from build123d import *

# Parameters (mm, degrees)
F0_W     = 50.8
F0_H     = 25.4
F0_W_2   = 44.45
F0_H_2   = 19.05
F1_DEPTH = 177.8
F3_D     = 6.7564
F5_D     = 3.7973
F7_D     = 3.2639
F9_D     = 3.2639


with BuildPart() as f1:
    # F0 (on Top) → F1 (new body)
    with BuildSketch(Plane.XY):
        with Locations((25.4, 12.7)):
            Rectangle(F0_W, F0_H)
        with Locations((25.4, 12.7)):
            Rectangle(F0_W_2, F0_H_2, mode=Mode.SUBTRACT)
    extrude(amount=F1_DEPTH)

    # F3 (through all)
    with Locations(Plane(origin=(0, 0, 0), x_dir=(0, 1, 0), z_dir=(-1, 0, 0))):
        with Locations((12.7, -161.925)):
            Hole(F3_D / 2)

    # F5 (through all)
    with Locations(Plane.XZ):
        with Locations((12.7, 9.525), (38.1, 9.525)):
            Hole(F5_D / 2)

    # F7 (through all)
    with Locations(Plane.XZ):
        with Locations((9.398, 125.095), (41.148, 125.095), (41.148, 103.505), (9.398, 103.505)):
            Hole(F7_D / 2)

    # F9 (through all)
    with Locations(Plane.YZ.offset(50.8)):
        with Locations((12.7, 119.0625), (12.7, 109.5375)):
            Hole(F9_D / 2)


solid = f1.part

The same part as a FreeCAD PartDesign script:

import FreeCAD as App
import Part
import Sketcher
from FreeCAD import Vector
Q = App.Units.Quantity


def add_polygon(sketch, points):
    """Adds a closed chain of lines whose ends are joined by coincident constraints."""
    first, n = sketch.GeometryCount, len(points)
    for a, b in zip(points, points[1:] + points[:1]):
        sketch.addGeometry(Part.LineSegment(App.Vector(*a, 0), App.Vector(*b, 0)), False)
    for i in range(n):
        sketch.addConstraint(Sketcher.Constraint("Coincident", first + i, 2, first + (i + 1) % n, 1))

doc = App.newDocument("Part")
body = doc.addObject("PartDesign::Body", "Body")

# Sketch on XY plane
sketch1 = body.newObject("Sketcher::SketchObject", "Sketch")
sketch1.AttachmentSupport = (doc.getObject("XY_Plane"), [""])
sketch1.MapMode = "FlatFace"
add_polygon(sketch1, [(0, 25.4), (0, 0), (50.8, 0), (50.8, 25.4)])  # lines 0-3
add_polygon(sketch1, [(47.625, 3.175), (3.175, 3.175), (3.175, 22.225), (47.625, 22.225)])  # lines 4-7
sketch1.addConstraint([
    Sketcher.Constraint("Vertical", 0),
    Sketcher.Constraint("Horizontal", 1),
    Sketcher.Constraint("Vertical", 2),
    Sketcher.Constraint("Horizontal", 3),
    Sketcher.Constraint("Horizontal", 4),
    Sketcher.Constraint("Vertical", 5),
    Sketcher.Constraint("Horizontal", 6),
    Sketcher.Constraint("Vertical", 7),
    Sketcher.Constraint("Coincident", 0, 2, -1, 1),
    Sketcher.Constraint("DistanceX", 1, 1, 1, 2, Q("2 in")),
    Sketcher.Constraint("DistanceY", 0, 2, 0, 1, Q("1 in")),
    Sketcher.Constraint("DistanceX", 4, 2, 4, 1, Q("1.75 in")),
    Sketcher.Constraint("DistanceY", 5, 1, 5, 2, Q("0.75 in")),
    Sketcher.Constraint("DistanceX", -1, 1, 4, 2, Q("0.125 in")),
    Sketcher.Constraint("DistanceY", -1, 1, 4, 2, Q("0.125 in")),
])
pad1 = body.newObject("PartDesign::Pad", "Pad")
pad1.Profile = sketch1
pad1.Length = Q("7 in")

# Sketch on YZ plane
sketch2 = body.newObject("Sketcher::SketchObject", "Sketch001")
sketch2.AttachmentSupport = (doc.getObject("YZ_Plane"), [""])
sketch2.MapMode = "FlatFace"
sketch2.addGeometry(Part.Circle(Vector(12.7, 161.925, 0), Vector(0, 0, 1), 3.3782), False)
sketch2.addConstraint([
    Sketcher.Constraint("Diameter", 0, Q("0.266 in")),
    Sketcher.Constraint("DistanceX", -1, 1, 0, 3, Q("0.5 in")),
    Sketcher.Constraint("DistanceY", -1, 1, 0, 3, Q("6.375 in")),
])
doc.recompute()
hole = body.newObject("PartDesign::Hole", "Hole")
hole.Profile = sketch2
hole.ThreadType = "None"
hole.Diameter = Q("0.266 in")
hole.DepthType = "ThroughAll"
hole.Reversed = True

# Sketch on XZ plane
sketch3 = body.newObject("Sketcher::SketchObject", "Sketch002")
sketch3.AttachmentSupport = (doc.getObject("XZ_Plane"), [""])
sketch3.MapMode = "FlatFace"
sketch3.addGeometry([
    Part.Circle(Vector(12.7, 9.525, 0), Vector(0, 0, 1), 1.89865),
    Part.Circle(Vector(38.1, 9.525, 0), Vector(0, 0, 1), 1.89865),
], False)
sketch3.addConstraint([
    Sketcher.Constraint("Equal", 0, 1),
    Sketcher.Constraint("Horizontal", 0, 3, 1, 3),
    Sketcher.Constraint("DistanceX", 0, 3, 1, 3, Q("1 in")),
    Sketcher.Constraint("Diameter", 0, Q("0.1495 in")),
    Sketcher.Constraint("DistanceX", -1, 1, 0, 3, Q("0.5 in")),
    Sketcher.Constraint("DistanceY", -1, 1, 0, 3, Q("0.375 in")),
])
doc.recompute()
hole2 = body.newObject("PartDesign::Hole", "Hole001")
hole2.Profile = sketch3
hole2.ThreadType = "None"
hole2.Diameter = Q("0.1495 in")
hole2.DepthType = "ThroughAll"

# Sketch on XZ plane
sketch4 = body.newObject("Sketcher::SketchObject", "Sketch003")
sketch4.AttachmentSupport = (doc.getObject("XZ_Plane"), [""])
sketch4.MapMode = "FlatFace"
sketch4.addGeometry([
    Part.Circle(Vector(9.398, 125.095, 0), Vector(0, 0, 1), 1.63195),
    Part.Circle(Vector(41.148, 125.095, 0), Vector(0, 0, 1), 1.63195),
    Part.Circle(Vector(41.148, 103.505, 0), Vector(0, 0, 1), 1.63195),
    Part.Circle(Vector(9.398, 103.505, 0), Vector(0, 0, 1), 1.63195),
], False)
sketch4.addConstraint([
    Sketcher.Constraint("Equal", 0, 1),
    Sketcher.Constraint("Equal", 1, 2),
    Sketcher.Constraint("Equal", 2, 3),
    Sketcher.Constraint("Horizontal", 0, 3, 1, 3),
    Sketcher.Constraint("Horizontal", 2, 3, 3, 3),
    Sketcher.Constraint("Vertical", 1, 3, 2, 3),
    Sketcher.Constraint("Vertical", 0, 3, 3, 3),
    Sketcher.Constraint("Diameter", 0, Q("0.1285 in")),
    Sketcher.Constraint("DistanceX", -1, 1, 0, 3, Q("0.37 in")),
    Sketcher.Constraint("DistanceX", -1, 1, 1, 3, Q("1.62 in")),
    Sketcher.Constraint("DistanceY", 2, 3, 1, 3, Q("0.85 in")),
    Sketcher.Constraint("DistanceY", -1, 1, 0, 3, Q("4.925 in")),
])
doc.recompute()
hole3 = body.newObject("PartDesign::Hole", "Hole002")
hole3.Profile = sketch4
hole3.ThreadType = "None"
hole3.Diameter = Q("0.1285 in")
hole3.DepthType = "ThroughAll"

# Sketch on YZ plane
sketch5 = body.newObject("Sketcher::SketchObject", "Sketch004")
sketch5.AttachmentSupport = (doc.getObject("YZ_Plane"), [""])
sketch5.MapMode = "FlatFace"
sketch5.AttachmentOffset = App.Placement(Vector(0, 0, 2 * 25.4), App.Rotation())
sketch5.addGeometry([
    Part.Circle(Vector(12.7, 119.0625, 0), Vector(0, 0, 1), 1.63195),
    Part.Circle(Vector(12.7, 109.5375, 0), Vector(0, 0, 1), 1.63195),
], False)
sketch5.addConstraint([
    Sketcher.Constraint("Equal", 0, 1),
    Sketcher.Constraint("Vertical", 0, 3, 1, 3),
    Sketcher.Constraint("Diameter", 0, Q("0.1285 in")),
    Sketcher.Constraint("DistanceX", -1, 1, 0, 3, Q("0.5 in")),
    Sketcher.Constraint("DistanceY", -1, 1, 0, 3, Q("4.6875 in")),
    Sketcher.Constraint("DistanceY", -1, 1, 1, 3, Q("4.3125 in")),
])
doc.recompute()
hole4 = body.newObject("PartDesign::Hole", "Hole003")
hole4.Profile = sketch5
hole4.ThreadType = "None"
hole4.Diameter = Q("0.1285 in")
hole4.DepthType = "ThroughAll"

doc.recompute()
